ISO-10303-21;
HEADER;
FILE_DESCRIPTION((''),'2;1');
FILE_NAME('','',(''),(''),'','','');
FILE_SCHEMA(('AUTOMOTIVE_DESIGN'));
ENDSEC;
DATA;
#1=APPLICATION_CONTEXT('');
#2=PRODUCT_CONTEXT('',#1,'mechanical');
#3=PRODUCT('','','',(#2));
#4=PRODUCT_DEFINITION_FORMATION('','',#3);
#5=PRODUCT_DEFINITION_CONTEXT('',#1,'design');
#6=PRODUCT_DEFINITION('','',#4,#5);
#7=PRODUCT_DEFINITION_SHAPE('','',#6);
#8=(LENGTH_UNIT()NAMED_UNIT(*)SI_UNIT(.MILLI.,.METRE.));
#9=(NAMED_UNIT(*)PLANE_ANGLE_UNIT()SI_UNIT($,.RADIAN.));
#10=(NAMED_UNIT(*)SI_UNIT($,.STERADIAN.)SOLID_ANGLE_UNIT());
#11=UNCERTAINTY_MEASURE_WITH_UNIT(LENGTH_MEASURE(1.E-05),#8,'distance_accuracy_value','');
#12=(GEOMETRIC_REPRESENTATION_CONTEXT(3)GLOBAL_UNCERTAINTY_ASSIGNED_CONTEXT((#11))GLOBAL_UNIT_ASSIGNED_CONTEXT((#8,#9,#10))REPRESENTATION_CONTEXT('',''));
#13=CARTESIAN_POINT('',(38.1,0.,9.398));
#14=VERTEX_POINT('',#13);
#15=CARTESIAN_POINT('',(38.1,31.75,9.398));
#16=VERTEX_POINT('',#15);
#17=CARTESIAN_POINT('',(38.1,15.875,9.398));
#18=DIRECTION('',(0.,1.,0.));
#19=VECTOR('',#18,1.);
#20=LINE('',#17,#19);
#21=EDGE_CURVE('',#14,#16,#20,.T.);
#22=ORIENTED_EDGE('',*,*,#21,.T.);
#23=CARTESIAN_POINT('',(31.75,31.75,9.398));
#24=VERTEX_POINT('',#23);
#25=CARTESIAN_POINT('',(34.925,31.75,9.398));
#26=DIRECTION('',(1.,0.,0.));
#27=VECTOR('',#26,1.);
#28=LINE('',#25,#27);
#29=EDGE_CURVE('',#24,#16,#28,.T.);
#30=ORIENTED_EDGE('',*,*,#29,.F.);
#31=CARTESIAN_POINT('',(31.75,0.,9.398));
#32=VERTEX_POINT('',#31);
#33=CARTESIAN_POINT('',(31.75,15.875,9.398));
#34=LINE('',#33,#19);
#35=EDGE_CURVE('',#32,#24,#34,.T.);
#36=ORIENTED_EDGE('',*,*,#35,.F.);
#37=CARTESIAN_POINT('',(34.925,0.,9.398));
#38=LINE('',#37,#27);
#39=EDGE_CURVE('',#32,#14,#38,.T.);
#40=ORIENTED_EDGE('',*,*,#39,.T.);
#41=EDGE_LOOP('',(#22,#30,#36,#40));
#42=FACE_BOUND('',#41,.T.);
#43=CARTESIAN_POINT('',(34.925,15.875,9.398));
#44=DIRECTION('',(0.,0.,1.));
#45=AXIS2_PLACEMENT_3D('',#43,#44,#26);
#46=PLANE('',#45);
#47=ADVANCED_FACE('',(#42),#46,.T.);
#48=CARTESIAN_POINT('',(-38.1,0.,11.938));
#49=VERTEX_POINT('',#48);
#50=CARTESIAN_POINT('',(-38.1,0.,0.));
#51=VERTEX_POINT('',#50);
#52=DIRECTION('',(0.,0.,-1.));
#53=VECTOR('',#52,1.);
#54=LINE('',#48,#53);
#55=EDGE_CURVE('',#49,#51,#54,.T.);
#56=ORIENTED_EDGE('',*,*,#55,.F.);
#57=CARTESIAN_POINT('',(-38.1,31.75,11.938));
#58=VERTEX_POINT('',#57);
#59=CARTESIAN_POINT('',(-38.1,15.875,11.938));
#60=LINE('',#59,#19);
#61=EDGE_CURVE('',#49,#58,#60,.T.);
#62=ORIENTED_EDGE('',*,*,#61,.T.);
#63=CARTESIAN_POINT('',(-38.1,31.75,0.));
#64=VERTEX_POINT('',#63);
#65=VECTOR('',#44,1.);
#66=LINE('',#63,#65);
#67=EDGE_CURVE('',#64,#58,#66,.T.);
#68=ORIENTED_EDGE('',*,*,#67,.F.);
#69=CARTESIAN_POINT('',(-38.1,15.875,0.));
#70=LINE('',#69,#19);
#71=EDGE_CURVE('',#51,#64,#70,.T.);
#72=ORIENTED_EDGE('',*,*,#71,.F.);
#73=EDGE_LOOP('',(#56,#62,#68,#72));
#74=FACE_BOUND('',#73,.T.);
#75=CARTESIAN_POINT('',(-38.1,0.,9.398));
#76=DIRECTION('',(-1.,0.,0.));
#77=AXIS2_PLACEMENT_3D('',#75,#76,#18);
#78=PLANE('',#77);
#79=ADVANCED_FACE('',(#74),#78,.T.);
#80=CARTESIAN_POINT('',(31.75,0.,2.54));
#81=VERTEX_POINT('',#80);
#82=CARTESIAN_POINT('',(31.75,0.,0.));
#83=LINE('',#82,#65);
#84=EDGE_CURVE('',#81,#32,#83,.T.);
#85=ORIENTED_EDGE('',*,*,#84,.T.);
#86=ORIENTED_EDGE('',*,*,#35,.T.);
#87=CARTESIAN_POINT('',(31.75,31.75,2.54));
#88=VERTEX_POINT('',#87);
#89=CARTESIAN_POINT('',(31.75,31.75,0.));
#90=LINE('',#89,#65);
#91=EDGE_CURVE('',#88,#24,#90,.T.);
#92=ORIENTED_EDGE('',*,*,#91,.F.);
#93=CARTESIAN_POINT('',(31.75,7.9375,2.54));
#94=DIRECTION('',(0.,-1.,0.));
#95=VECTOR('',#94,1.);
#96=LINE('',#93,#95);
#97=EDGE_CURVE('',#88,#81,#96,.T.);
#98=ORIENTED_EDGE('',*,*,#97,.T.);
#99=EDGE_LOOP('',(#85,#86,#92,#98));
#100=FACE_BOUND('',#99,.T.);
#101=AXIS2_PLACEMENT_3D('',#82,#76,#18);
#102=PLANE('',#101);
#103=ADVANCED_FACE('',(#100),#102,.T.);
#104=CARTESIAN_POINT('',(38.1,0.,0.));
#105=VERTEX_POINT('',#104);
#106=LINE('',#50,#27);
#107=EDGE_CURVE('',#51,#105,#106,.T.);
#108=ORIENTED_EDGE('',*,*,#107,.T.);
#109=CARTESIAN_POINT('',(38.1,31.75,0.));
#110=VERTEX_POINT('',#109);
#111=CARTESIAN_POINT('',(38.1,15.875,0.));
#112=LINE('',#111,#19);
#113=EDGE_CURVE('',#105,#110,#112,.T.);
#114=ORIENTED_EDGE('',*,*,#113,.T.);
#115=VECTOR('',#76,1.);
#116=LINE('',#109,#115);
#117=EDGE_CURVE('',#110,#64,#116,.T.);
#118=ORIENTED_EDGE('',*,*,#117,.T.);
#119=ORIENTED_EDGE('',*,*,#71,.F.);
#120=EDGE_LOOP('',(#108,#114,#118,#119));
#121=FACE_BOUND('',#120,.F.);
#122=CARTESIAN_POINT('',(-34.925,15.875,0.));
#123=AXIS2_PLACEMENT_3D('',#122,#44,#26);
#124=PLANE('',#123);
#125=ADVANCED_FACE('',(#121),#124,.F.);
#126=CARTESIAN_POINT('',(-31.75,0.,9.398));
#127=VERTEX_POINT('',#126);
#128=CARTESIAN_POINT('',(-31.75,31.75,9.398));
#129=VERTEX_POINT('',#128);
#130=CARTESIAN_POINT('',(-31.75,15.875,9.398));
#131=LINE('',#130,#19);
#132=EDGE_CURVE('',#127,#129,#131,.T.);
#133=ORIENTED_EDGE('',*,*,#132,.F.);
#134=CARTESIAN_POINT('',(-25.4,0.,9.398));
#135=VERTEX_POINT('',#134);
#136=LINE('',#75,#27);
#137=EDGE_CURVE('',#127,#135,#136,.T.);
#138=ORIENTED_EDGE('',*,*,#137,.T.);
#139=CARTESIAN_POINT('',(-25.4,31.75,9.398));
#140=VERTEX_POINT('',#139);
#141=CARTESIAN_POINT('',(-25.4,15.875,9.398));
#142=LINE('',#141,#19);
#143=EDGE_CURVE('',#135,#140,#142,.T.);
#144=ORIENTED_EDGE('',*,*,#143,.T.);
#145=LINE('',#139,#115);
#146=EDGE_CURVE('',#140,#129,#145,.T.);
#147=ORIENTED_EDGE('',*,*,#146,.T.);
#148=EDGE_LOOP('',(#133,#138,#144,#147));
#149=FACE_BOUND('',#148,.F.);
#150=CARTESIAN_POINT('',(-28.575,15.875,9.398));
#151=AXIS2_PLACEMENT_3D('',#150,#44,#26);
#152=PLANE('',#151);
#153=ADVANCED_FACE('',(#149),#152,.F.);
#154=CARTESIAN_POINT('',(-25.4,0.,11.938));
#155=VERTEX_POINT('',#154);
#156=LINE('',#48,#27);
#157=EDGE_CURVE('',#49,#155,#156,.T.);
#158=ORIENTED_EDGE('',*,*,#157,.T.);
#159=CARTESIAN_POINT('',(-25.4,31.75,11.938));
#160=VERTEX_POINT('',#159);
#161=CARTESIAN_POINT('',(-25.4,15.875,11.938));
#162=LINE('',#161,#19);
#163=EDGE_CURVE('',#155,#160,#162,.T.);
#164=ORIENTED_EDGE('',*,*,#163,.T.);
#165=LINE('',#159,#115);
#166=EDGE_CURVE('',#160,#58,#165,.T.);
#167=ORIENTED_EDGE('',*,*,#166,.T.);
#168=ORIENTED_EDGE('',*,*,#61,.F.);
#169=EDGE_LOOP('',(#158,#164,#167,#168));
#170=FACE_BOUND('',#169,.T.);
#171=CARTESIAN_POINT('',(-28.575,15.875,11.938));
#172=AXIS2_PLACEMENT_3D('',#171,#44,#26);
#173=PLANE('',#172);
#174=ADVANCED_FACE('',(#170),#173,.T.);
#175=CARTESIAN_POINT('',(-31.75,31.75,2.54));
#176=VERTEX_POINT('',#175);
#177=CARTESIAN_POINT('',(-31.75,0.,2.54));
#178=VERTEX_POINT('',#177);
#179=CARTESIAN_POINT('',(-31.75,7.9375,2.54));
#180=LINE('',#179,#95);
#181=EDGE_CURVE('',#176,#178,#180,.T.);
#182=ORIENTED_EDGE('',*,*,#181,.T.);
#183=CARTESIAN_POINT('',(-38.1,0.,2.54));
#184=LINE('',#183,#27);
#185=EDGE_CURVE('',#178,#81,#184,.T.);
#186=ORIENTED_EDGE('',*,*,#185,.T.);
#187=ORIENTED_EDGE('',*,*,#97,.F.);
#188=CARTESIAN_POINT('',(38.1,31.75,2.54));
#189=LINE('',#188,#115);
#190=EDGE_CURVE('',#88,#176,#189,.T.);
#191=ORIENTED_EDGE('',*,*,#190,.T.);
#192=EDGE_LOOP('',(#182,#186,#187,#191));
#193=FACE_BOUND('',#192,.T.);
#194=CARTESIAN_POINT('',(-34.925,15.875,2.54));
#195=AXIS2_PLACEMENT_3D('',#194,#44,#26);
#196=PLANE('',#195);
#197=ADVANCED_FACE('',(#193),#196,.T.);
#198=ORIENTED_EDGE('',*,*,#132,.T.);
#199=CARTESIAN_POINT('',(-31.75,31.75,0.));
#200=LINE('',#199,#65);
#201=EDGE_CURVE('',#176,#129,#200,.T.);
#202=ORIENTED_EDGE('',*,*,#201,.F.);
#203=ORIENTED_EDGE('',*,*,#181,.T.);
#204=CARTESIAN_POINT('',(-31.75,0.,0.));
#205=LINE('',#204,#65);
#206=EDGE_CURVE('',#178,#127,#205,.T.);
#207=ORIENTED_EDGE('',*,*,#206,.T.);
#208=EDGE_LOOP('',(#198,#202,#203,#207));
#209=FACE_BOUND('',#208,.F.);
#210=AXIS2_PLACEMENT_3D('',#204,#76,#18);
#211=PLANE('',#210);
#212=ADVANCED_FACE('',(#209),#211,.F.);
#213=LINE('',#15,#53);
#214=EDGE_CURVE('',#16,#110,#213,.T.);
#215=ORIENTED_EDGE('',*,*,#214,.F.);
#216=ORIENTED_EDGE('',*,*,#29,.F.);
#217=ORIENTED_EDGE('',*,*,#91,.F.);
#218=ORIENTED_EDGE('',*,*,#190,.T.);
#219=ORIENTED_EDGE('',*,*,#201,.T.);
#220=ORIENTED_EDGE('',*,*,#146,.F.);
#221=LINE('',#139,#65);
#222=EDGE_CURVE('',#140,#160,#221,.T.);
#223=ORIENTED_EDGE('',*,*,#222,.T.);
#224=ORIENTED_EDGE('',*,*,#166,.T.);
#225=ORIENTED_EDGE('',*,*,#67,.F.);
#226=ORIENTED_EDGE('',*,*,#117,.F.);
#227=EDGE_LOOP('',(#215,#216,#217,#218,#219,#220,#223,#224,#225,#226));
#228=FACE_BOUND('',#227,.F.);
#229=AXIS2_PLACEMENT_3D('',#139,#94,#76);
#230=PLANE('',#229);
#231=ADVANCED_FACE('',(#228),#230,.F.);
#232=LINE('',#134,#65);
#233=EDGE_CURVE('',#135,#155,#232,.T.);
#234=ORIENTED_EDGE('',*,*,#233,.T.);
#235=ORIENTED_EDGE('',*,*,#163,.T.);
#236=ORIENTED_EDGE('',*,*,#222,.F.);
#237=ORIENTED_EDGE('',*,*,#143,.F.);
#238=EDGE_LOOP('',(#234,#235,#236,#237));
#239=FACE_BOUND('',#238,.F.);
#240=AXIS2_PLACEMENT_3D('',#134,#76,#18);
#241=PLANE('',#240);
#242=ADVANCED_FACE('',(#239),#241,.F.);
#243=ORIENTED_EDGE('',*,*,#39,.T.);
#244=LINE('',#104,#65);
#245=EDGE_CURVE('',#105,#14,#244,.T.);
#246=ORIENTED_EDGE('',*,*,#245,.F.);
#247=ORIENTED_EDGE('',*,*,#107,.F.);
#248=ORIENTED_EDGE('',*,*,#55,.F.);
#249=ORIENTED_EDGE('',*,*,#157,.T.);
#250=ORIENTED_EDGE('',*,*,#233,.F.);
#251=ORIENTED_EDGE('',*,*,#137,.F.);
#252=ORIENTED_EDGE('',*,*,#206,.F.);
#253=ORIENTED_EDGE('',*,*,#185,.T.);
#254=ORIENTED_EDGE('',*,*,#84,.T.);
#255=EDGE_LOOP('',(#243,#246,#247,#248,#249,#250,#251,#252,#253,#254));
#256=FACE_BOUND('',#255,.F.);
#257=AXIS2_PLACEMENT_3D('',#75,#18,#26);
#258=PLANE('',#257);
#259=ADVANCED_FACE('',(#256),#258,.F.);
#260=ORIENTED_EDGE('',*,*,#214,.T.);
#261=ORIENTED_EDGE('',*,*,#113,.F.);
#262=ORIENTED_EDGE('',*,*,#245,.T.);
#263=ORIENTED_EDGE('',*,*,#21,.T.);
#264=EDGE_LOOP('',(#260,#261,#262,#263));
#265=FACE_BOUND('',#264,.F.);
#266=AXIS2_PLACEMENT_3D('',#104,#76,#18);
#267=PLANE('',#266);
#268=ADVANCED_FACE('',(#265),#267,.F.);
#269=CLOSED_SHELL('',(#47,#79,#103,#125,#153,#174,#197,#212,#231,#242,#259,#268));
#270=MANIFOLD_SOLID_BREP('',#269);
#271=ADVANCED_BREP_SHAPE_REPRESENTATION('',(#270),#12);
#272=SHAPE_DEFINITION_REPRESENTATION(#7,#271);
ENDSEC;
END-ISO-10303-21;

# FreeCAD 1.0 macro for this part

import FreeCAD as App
import Part
import Sketcher
from FreeCAD import Vector
Q = App.Units.Quantity


def add_polygon(sketch, points):
    """Adds a closed chain of lines whose ends are joined by coincident constraints."""
    first, n = sketch.GeometryCount, len(points)
    for a, b in zip(points, points[1:] + points[:1]):
        sketch.addGeometry(Part.LineSegment(App.Vector(*a, 0), App.Vector(*b, 0)), False)
    for i in range(n):
        sketch.addConstraint(Sketcher.Constraint("Coincident", first + i, 2, first + (i + 1) % n, 1))

doc = App.newDocument("Part")
params = doc.addObject("Spreadsheet::Sheet", "Params")
for row, (alias, value) in enumerate([
    ("sketch1_width", "3 in"),
    ("sketch1_height", "1.25 in"),
    ("pad1_length", "0.1 in"),
    ("sketch2_width", "0.25 in"),
    ("sketch2_height", "1.25 in"),
    ("pad2_length", "0.37 in"),
    ("sketch3_width", "0.5 in"),
    ("sketch3_height", "1.25 in"),
    ("pad3_length", "0.1 in"),
], start=1):
    params.set(f"A{row}", alias)
    params.set(f"B{row}", "=" + value)
    params.setAlias(f"B{row}", alias)

body = doc.addObject("PartDesign::Body", "Body")

# Sketch on XY plane
sketch1 = doc.addObject("Sketcher::SketchObject", "Sketch")
body.addObject(sketch1)
sketch1.AttachmentSupport = (doc.XY_Plane, [""])
sketch1.MapMode = "FlatFace"
add_polygon(sketch1, [(-38, 32), (-38, 0), (38, 0), (38, 32)])  # lines 0-3
sketch1.addConstraint([
    Sketcher.Constraint("Vertical", 0),
    Sketcher.Constraint("Horizontal", 1),
    Sketcher.Constraint("Vertical", 2),
    Sketcher.Constraint("Horizontal", 3),
    Sketcher.Constraint("Symmetric", 0, 2, 1, 2, -1, 1),
    Sketcher.Constraint("DistanceX", 1, 1, 1, 2, Q("3 in")),
    Sketcher.Constraint("DistanceY", 0, 2, 0, 1, Q("1.25 in")),
])
sketch1.setExpression("Constraints[9]", "Params.sketch1_width")
sketch1.setExpression("Constraints[10]", "Params.sketch1_height")
pad1 = doc.addObject("PartDesign::Pad", "Pad")
body.addObject(pad1)
pad1.Profile = sketch1
pad1.setExpression("Length", "Params.pad1_length")

# Sketch on XY plane
sketch2 = doc.addObject("Sketcher::SketchObject", "Sketch001")
body.addObject(sketch2)
sketch2.AttachmentSupport = (doc.XY_Plane, [""])
sketch2.MapMode = "FlatFace"
add_polygon(sketch2, [(-38, 32), (-38, 0), (-32, 0), (-32, 32)])  # lines 0-3
add_polygon(sketch2, [(32, 32), (32, 0), (38, 0), (38, 32)])  # lines 4-7
sketch2.addConstraint([
    Sketcher.Constraint("Vertical", 0),
    Sketcher.Constraint("Horizontal", 1),
    Sketcher.Constraint("Vertical", 2),
    Sketcher.Constraint("Horizontal", 3),
    Sketcher.Constraint("Vertical", 4),
    Sketcher.Constraint("Horizontal", 5),
    Sketcher.Constraint("Vertical", 6),
    Sketcher.Constraint("Horizontal", 7),
    Sketcher.Constraint("Symmetric", 1, 2, 4, 2, -1, 1),
    Sketcher.Constraint("Symmetric", 0, 2, 5, 2, -2),
    Sketcher.Constraint("Horizontal", 3, 2, 6, 2),
    Sketcher.Constraint("DistanceX", 0, 2, 5, 2, Q("3 in")),
    Sketcher.Constraint("DistanceX", 1, 1, 1, 2, Q("0.25 in")),
    Sketcher.Constraint("DistanceY", 0, 2, 0, 1, Q("1.25 in")),
])
sketch2.setExpression("Constraints[20]", "Params.sketch2_width")
sketch2.setExpression("Constraints[21]", "Params.sketch2_height")
pad2 = doc.addObject("PartDesign::Pad", "Pad001")
body.addObject(pad2)
pad2.Profile = sketch2
pad2.setExpression("Length", "Params.pad2_length")

# Sketch on XY plane
sketch3 = doc.addObject("Sketcher::SketchObject", "Sketch002")
body.addObject(sketch3)
sketch3.AttachmentSupport = (doc.XY_Plane, [""])
sketch3.MapMode = "FlatFace"
sketch3.AttachmentOffset = App.Placement(Vector(0, 0, 0.37 * 25.4), App.Rotation())
add_polygon(sketch3, [(-25, 0), (-25, 32), (-38, 32), (-38, 0)])  # lines 0-3
sketch3.addConstraint([
    Sketcher.Constraint("Vertical", 0),
    Sketcher.Constraint("Horizontal", 1),
    Sketcher.Constraint("Vertical", 2),
    Sketcher.Constraint("Horizontal", 3),
    Sketcher.Constraint("PointOnObject", 2, 2, -1),
    Sketcher.Constraint("DistanceX", 1, 2, 1, 1, Q("0.5 in")),
    Sketcher.Constraint("DistanceX", 0, 2, -1, 1, Q("1 in")),
    Sketcher.Constraint("DistanceY", 0, 1, 0, 2, Q("1.25 in")),
])
sketch3.setExpression("Constraints[9]", "Params.sketch3_width")
sketch3.setExpression("Constraints[11]", "Params.sketch3_height")
pad3 = doc.addObject("PartDesign::Pad", "Pad002")
body.addObject(pad3)
pad3.Profile = sketch3
pad3.setExpression("Length", "Params.pad3_length")

doc.recompute()
